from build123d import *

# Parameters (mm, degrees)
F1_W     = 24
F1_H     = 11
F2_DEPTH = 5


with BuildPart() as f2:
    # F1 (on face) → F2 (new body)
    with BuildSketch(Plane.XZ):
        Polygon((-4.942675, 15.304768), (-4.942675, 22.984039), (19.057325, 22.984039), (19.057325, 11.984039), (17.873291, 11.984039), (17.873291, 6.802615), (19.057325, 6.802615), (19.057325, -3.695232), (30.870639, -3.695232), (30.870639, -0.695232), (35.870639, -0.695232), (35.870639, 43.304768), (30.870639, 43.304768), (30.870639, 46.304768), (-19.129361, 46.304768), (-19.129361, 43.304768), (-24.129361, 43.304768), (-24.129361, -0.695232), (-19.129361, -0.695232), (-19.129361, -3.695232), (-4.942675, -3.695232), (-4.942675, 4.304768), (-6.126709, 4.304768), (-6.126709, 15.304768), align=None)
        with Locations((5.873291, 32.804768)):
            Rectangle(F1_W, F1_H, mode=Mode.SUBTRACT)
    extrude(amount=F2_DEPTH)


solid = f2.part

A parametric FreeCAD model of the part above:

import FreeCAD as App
import Part
import Sketcher
Q = App.Units.Quantity


def add_polygon(sketch, points):
    """Adds a closed chain of lines whose ends are joined by coincident constraints."""
    first, n = sketch.GeometryCount, len(points)
    for a, b in zip(points, points[1:] + points[:1]):
        sketch.addGeometry(Part.LineSegment(App.Vector(*a, 0), App.Vector(*b, 0)), False)
    for i in range(n):
        sketch.addConstraint(Sketcher.Constraint("Coincident", first + i, 2, first + (i + 1) % n, 1))

doc = App.newDocument("Part")
body = doc.addObject("PartDesign::Body", "Body")

# Sketch on XZ plane
sketch1 = body.newObject("Sketcher::SketchObject", "Sketch")
sketch1.AttachmentSupport = (doc.getObject("XZ_Plane"), [""])
sketch1.MapMode = "FlatFace"
add_polygon(sketch1, [(-4.9, 15.3), (-4.9, 23), (19.1, 23), (19.1, 12), (17.9, 12), (17.9, 6.8), (19.1, 6.8), (19.1, -3.7), (30.9, -3.7), (30.9, -0.7), (35.9, -0.7), (35.9, 43.3), (30.9, 43.3), (30.9, 46.3), (-19.1, 46.3), (-19.1, 43.3), (-24.1, 43.3), (-24.1, -0.7), (-19.1, -0.7), (-19.1, -3.7), (-4.9, -3.7), (-4.9, 4.3), (-6.1, 4.3), (-6.1, 15.3)])  # lines 0-23
add_polygon(sketch1, [(17.9, 27.3), (-6.1, 27.3), (-6.1, 38.3), (17.9, 38.3)])  # lines 24-27
sketch1.addConstraint(Sketcher.Constraint("Vertical", 0))
sketch1.addConstraint(Sketcher.Constraint("Horizontal", 1))
sketch1.addConstraint(Sketcher.Constraint("Vertical", 2))
sketch1.addConstraint(Sketcher.Constraint("Horizontal", 3))
sketch1.addConstraint(Sketcher.Constraint("Vertical", 4))
sketch1.addConstraint(Sketcher.Constraint("Horizontal", 5))
sketch1.addConstraint(Sketcher.Constraint("Vertical", 6))
sketch1.addConstraint(Sketcher.Constraint("Horizontal", 7))
sketch1.addConstraint(Sketcher.Constraint("Vertical", 8))
sketch1.addConstraint(Sketcher.Constraint("Horizontal", 9))
sketch1.addConstraint(Sketcher.Constraint("Vertical", 10))
sketch1.addConstraint(Sketcher.Constraint("Horizontal", 11))
sketch1.addConstraint(Sketcher.Constraint("Vertical", 12))
sketch1.addConstraint(Sketcher.Constraint("Horizontal", 13))
sketch1.addConstraint(Sketcher.Constraint("Vertical", 14))
sketch1.addConstraint(Sketcher.Constraint("Horizontal", 15))
sketch1.addConstraint(Sketcher.Constraint("Vertical", 16))
sketch1.addConstraint(Sketcher.Constraint("Horizontal", 17))
sketch1.addConstraint(Sketcher.Constraint("Vertical", 18))
sketch1.addConstraint(Sketcher.Constraint("Horizontal", 19))
sketch1.addConstraint(Sketcher.Constraint("Vertical", 20))
sketch1.addConstraint(Sketcher.Constraint("Horizontal", 21))
sketch1.addConstraint(Sketcher.Constraint("Vertical", 22))
sketch1.addConstraint(Sketcher.Constraint("Horizontal", 23))
sketch1.addConstraint(Sketcher.Constraint("Horizontal", 24))
sketch1.addConstraint(Sketcher.Constraint("Vertical", 25))
sketch1.addConstraint(Sketcher.Constraint("Horizontal", 26))
sketch1.addConstraint(Sketcher.Constraint("Vertical", 27))
sketch1.addConstraint(Sketcher.Constraint("Horizontal", 11, 2, 14, 2))
sketch1.addConstraint(Sketcher.Constraint("Horizontal", 9, 2, 16, 2))
sketch1.addConstraint(Sketcher.Constraint("Horizontal", 7, 2, 18, 2))
sketch1.addConstraint(Sketcher.Constraint("Vertical", 2, 2, 5, 2))
sketch1.addConstraint(Sketcher.Constraint("Vertical", 8, 2, 11, 2))
sketch1.addConstraint(Sketcher.Constraint("Vertical", 14, 2, 17, 2))
sketch1.addConstraint(Sketcher.Constraint("Vertical", 0, 2, 19, 2))
sketch1.addConstraint(Sketcher.Constraint("Vertical", 22, 2, 24, 2))
sketch1.addConstraint(Sketcher.Constraint("Vertical", 4, 2, 26, 2))
sketch1.addConstraint(Sketcher.Constraint("Equal", 11, 15))
sketch1.addConstraint(Sketcher.Constraint("Equal", 5, 21))
sketch1.addConstraint(Sketcher.Constraint("Equal", 8, 12))
sketch1.addConstraint(Sketcher.Constraint("Equal", 2, 22))
sketch1.addConstraint(Sketcher.Constraint("Equal", 22, 25))
sketch1.addConstraint(Sketcher.Constraint("DistanceX", 1, 1, 1, 2, Q("24 mm")))
sketch1.addConstraint(Sketcher.Constraint("DistanceX", 9, 1, 9, 2, Q("5 mm")))
sketch1.addConstraint(Sketcher.Constraint("DistanceX", 13, 2, 13, 1, Q("50 mm")))
sketch1.addConstraint(Sketcher.Constraint("DistanceY", 2, 2, 2, 1, Q("11 mm")))
sketch1.addConstraint(Sketcher.Constraint("DistanceY", 8, 1, 8, 2, Q("3 mm")))
sketch1.addConstraint(Sketcher.Constraint("DistanceY", 10, 1, 10, 2, Q("44 mm")))
sketch1.addConstraint(Sketcher.Constraint("DistanceY", 20, 1, 20, 2, Q("8 mm")))
sketch1.addConstraint(Sketcher.Constraint("DistanceY", 22, 2, 24, 2, Q("12 mm")))
sketch1.addConstraint(Sketcher.Constraint("DistanceY", 0, 1, 0, 2, Q("7.679271 mm")))
sketch1.addConstraint(Sketcher.Constraint("DistanceX", 3, 2, 3, 1, Q("1.184034 mm")))
sketch1.addConstraint(Sketcher.Constraint("DistanceX", 7, 1, 7, 2, Q("11.813314 mm")))
sketch1.addConstraint(Sketcher.Constraint("DistanceY", 4, 2, 4, 1, Q("5.181424 mm")))
sketch1.addConstraint(Sketcher.Constraint("DistanceY", -1, 1, 0, 2, Q("22.984039 mm")))
sketch1.addConstraint(Sketcher.Constraint("DistanceX", -1, 1, 3, 2, Q("17.873291 mm")))
pad1 = body.newObject("PartDesign::Pad", "Pad")
pad1.Profile = sketch1
pad1.Length = 5

doc.recompute()
